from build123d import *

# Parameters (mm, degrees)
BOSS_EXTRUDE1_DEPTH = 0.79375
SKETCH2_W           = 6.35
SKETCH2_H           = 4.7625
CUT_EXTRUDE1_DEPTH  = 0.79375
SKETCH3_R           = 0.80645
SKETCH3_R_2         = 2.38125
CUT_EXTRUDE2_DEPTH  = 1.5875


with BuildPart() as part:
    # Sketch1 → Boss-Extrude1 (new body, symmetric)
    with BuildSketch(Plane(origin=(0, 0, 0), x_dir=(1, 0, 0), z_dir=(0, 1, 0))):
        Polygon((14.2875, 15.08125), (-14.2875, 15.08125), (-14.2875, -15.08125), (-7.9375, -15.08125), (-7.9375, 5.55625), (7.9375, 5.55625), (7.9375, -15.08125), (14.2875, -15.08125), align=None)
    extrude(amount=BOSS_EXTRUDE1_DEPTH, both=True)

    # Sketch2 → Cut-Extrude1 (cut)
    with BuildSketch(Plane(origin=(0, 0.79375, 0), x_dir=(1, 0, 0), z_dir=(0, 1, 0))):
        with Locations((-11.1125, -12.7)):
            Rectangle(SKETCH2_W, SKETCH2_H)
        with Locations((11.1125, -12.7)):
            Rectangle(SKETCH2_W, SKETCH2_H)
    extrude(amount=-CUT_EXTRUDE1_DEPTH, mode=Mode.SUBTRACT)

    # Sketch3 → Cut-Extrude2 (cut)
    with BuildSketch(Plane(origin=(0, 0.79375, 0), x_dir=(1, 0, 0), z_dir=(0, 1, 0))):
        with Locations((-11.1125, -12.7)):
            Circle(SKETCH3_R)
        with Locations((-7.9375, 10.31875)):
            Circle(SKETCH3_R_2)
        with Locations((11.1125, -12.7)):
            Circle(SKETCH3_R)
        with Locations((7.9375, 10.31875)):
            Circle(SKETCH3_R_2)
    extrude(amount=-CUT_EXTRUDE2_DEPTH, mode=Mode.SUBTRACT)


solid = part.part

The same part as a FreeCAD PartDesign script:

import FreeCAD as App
import Part
import Sketcher
Q = App.Units.Quantity

doc = App.newDocument("Part")
params = doc.addObject("Spreadsheet::Sheet", "Params")
for row, (alias, value) in enumerate([
    ("sketch1_width", "0.25 in"),
    ("sketch1_width2", "1.125 in"),
    ("sketch1_height", "1.1875 in"),
    ("sketch1_height2", "0.8125 in"),
    ("pad1_length", "0.0625 in"),
    ("sketch2_width", "0.25 in"),
    ("sketch2_height", "0.1875 in"),
    ("pocket1_length", "0.03125 in"),
    ("sketch3_diameter", "0.1875 in"),
    ("pocket2_length", "0.0625 in"),
], start=1):
    params.set(f"A{row}", alias)
    params.set(f"B{row}", "=" + value)
    params.setAlias(f"B{row}", alias)

body = doc.addObject("PartDesign::Body", "Body")

# Sketch on XZ plane
sketch1 = body.newObject("Sketcher::SketchObject", "Sketch")
sketch1.AttachmentSupport = (doc.getObject("XZ_Plane"), [""])
sketch1.MapMode = "FlatFace"
sketch1.addGeometry([
    Part.LineSegment(App.Vector(14, -15, 0), App.Vector(-14, -15, 0)),  # 0
    Part.LineSegment(App.Vector(-14, -15, 0), App.Vector(-14, 15, 0)),  # 1
    Part.LineSegment(App.Vector(-14, 15, 0), App.Vector(-8, 15, 0)),  # 2
    Part.LineSegment(App.Vector(-8, 15, 0), App.Vector(-8, -6, 0)),  # 3
    Part.LineSegment(App.Vector(-8, -6, 0), App.Vector(8, -6, 0)),  # 4
    Part.LineSegment(App.Vector(8, -6, 0), App.Vector(8, 15, 0)),  # 5
    Part.LineSegment(App.Vector(8, 15, 0), App.Vector(14, 15, 0)),  # 6
    Part.LineSegment(App.Vector(14, 15, 0), App.Vector(14, -15, 0)),  # 7
], False)
sketch1.addConstraint([
    Sketcher.Constraint("Coincident", 0, 2, 1, 1),
    Sketcher.Constraint("Coincident", 1, 2, 2, 1),
    Sketcher.Constraint("Coincident", 2, 2, 3, 1),
    Sketcher.Constraint("Coincident", 3, 2, 4, 1),
    Sketcher.Constraint("Coincident", 4, 2, 5, 1),
    Sketcher.Constraint("Coincident", 5, 2, 6, 1),
    Sketcher.Constraint("Coincident", 6, 2, 7, 1),
    Sketcher.Constraint("Coincident", 7, 2, 0, 1),
    Sketcher.Constraint("Horizontal", 0),
    Sketcher.Constraint("Vertical", 1),
    Sketcher.Constraint("Horizontal", 2),
    Sketcher.Constraint("Vertical", 3),
    Sketcher.Constraint("Horizontal", 4),
    Sketcher.Constraint("Vertical", 5),
    Sketcher.Constraint("Horizontal", 6),
    Sketcher.Constraint("Vertical", 7),
    Sketcher.Constraint("Symmetric", 0, 2, 6, 2, -1, 1),
    Sketcher.Constraint("Symmetric", 2, 2, 5, 2, -2),
    Sketcher.Constraint("DistanceX", 2, 1, 2, 2, Q("0.25 in")),
    Sketcher.Constraint("DistanceX", 0, 2, 0, 1, Q("1.125 in")),
    Sketcher.Constraint("DistanceY", 1, 1, 1, 2, Q("1.1875 in")),
    Sketcher.Constraint("DistanceY", 3, 2, 3, 1, Q("0.8125 in")),
])
sketch1.setExpression("Constraints[18]", "Params.sketch1_width")
sketch1.setExpression("Constraints[19]", "Params.sketch1_width2")
sketch1.setExpression("Constraints[20]", "Params.sketch1_height")
sketch1.setExpression("Constraints[21]", "Params.sketch1_height2")
pad1 = body.newObject("PartDesign::Pad", "Pad")
pad1.Profile = sketch1
pad1.setExpression("Length", "Params.pad1_length")
pad1.Midplane = True

# Sketch on XZ plane
sketch2 = body.newObject("Sketcher::SketchObject", "Sketch001")
sketch2.AttachmentSupport = (doc.getObject("XZ_Plane"), [""])
sketch2.MapMode = "FlatFace"
sketch2.AttachmentOffset = App.Placement(App.Vector(0, 0, -0.03125 * 25.4), App.Rotation())
sketch2.addGeometry([
    Part.LineSegment(App.Vector(-14.3, 10.3, 0), App.Vector(-14.3, 15.1, 0)),  # 0
    Part.LineSegment(App.Vector(-14.3, 15.1, 0), App.Vector(-7.9, 15.1, 0)),  # 1
    Part.LineSegment(App.Vector(-7.9, 15.1, 0), App.Vector(-7.9, 10.3, 0)),  # 2
    Part.LineSegment(App.Vector(-7.9, 10.3, 0), App.Vector(-14.3, 10.3, 0)),  # 3
    Part.LineSegment(App.Vector(7.9, 10.3, 0), App.Vector(7.9, 15.1, 0)),  # 4
    Part.LineSegment(App.Vector(7.9, 15.1, 0), App.Vector(14.3, 15.1, 0)),  # 5
    Part.LineSegment(App.Vector(14.3, 15.1, 0), App.Vector(14.3, 10.3, 0)),  # 6
    Part.LineSegment(App.Vector(14.3, 10.3, 0), App.Vector(7.9, 10.3, 0)),  # 7
], False)
sketch2.addConstraint([
    Sketcher.Constraint("Coincident", 0, 2, 1, 1),
    Sketcher.Constraint("Coincident", 1, 2, 2, 1),
    Sketcher.Constraint("Coincident", 2, 2, 3, 1),
    Sketcher.Constraint("Coincident", 3, 2, 0, 1),
    Sketcher.Constraint("Coincident", 4, 2, 5, 1),
    Sketcher.Constraint("Coincident", 5, 2, 6, 1),
    Sketcher.Constraint("Coincident", 6, 2, 7, 1),
    Sketcher.Constraint("Coincident", 7, 2, 4, 1),
    Sketcher.Constraint("Vertical", 0),
    Sketcher.Constraint("Horizontal", 1),
    Sketcher.Constraint("Vertical", 2),
    Sketcher.Constraint("Horizontal", 3),
    Sketcher.Constraint("Vertical", 4),
    Sketcher.Constraint("Horizontal", 5),
    Sketcher.Constraint("Vertical", 6),
    Sketcher.Constraint("Horizontal", 7),
    Sketcher.Constraint("Symmetric", 1, 2, 4, 2, -2),
    Sketcher.Constraint("Symmetric", 3, 2, 6, 2, -2),
    Sketcher.Constraint("DistanceX", 1, 1, 1, 2, Q("0.25 in")),
    Sketcher.Constraint("DistanceY", 0, 1, 0, 2, Q("0.1875 in")),
    Sketcher.Constraint("DistanceX", 0, 2, -1, 1, Q("0.5625 in")),
    Sketcher.Constraint("DistanceY", -1, 1, 0, 2, Q("0.59375 in")),
])
sketch2.setExpression("Constraints[18]", "Params.sketch2_width")
sketch2.setExpression("Constraints[19]", "Params.sketch2_height")
pocket1 = body.newObject("PartDesign::Pocket", "Pocket")
pocket1.Profile = sketch2
pocket1.setExpression("Length", "Params.pocket1_length")
pocket1.Reversed = True

# Sketch on XZ plane
sketch3 = body.newObject("Sketcher::SketchObject", "Sketch002")
sketch3.AttachmentSupport = (doc.getObject("XZ_Plane"), [""])
sketch3.MapMode = "FlatFace"
sketch3.AttachmentOffset = App.Placement(App.Vector(0, 0, -0.03125 * 25.4), App.Rotation())
sketch3.addGeometry([
    Part.Circle(App.Vector(-11.1, 12.7, 0), App.Vector(0, 0, 1), 0.8),
    Part.Circle(App.Vector(-7.9, -10.3, 0), App.Vector(0, 0, 1), 2.4),
    Part.Circle(App.Vector(11.1, 12.7, 0), App.Vector(0, 0, 1), 0.8),
    Part.Circle(App.Vector(7.9, -10.3, 0), App.Vector(0, 0, 1), 2.4),
], False)
sketch3.addConstraint([
    Sketcher.Constraint("Equal", 0, 2),
    Sketcher.Constraint("Equal", 1, 3),
    Sketcher.Constraint("Symmetric", 0, 3, 2, 3, -2),
    Sketcher.Constraint("Symmetric", 1, 3, 3, 3, -2),
    Sketcher.Constraint("Diameter", 1, Q("0.1875 in")),
    Sketcher.Constraint("Diameter", 0, Q("0.0635 in")),
    Sketcher.Constraint("DistanceY", -1, 1, 0, 3, Q("0.5 in")),
    Sketcher.Constraint("DistanceX", 1, 3, 2, 3, Q("0.75 in")),
    Sketcher.Constraint("DistanceX", 0, 3, -1, 1, Q("0.4375 in")),
    Sketcher.Constraint("DistanceY", 1, 3, -1, 1, Q("0.40625 in")),
])
sketch3.setExpression("Constraints[4]", "Params.sketch3_diameter")
pocket2 = body.newObject("PartDesign::Pocket", "Pocket001")
pocket2.Profile = sketch3
pocket2.setExpression("Length", "Params.pocket2_length")
pocket2.Reversed = True

doc.recompute()
